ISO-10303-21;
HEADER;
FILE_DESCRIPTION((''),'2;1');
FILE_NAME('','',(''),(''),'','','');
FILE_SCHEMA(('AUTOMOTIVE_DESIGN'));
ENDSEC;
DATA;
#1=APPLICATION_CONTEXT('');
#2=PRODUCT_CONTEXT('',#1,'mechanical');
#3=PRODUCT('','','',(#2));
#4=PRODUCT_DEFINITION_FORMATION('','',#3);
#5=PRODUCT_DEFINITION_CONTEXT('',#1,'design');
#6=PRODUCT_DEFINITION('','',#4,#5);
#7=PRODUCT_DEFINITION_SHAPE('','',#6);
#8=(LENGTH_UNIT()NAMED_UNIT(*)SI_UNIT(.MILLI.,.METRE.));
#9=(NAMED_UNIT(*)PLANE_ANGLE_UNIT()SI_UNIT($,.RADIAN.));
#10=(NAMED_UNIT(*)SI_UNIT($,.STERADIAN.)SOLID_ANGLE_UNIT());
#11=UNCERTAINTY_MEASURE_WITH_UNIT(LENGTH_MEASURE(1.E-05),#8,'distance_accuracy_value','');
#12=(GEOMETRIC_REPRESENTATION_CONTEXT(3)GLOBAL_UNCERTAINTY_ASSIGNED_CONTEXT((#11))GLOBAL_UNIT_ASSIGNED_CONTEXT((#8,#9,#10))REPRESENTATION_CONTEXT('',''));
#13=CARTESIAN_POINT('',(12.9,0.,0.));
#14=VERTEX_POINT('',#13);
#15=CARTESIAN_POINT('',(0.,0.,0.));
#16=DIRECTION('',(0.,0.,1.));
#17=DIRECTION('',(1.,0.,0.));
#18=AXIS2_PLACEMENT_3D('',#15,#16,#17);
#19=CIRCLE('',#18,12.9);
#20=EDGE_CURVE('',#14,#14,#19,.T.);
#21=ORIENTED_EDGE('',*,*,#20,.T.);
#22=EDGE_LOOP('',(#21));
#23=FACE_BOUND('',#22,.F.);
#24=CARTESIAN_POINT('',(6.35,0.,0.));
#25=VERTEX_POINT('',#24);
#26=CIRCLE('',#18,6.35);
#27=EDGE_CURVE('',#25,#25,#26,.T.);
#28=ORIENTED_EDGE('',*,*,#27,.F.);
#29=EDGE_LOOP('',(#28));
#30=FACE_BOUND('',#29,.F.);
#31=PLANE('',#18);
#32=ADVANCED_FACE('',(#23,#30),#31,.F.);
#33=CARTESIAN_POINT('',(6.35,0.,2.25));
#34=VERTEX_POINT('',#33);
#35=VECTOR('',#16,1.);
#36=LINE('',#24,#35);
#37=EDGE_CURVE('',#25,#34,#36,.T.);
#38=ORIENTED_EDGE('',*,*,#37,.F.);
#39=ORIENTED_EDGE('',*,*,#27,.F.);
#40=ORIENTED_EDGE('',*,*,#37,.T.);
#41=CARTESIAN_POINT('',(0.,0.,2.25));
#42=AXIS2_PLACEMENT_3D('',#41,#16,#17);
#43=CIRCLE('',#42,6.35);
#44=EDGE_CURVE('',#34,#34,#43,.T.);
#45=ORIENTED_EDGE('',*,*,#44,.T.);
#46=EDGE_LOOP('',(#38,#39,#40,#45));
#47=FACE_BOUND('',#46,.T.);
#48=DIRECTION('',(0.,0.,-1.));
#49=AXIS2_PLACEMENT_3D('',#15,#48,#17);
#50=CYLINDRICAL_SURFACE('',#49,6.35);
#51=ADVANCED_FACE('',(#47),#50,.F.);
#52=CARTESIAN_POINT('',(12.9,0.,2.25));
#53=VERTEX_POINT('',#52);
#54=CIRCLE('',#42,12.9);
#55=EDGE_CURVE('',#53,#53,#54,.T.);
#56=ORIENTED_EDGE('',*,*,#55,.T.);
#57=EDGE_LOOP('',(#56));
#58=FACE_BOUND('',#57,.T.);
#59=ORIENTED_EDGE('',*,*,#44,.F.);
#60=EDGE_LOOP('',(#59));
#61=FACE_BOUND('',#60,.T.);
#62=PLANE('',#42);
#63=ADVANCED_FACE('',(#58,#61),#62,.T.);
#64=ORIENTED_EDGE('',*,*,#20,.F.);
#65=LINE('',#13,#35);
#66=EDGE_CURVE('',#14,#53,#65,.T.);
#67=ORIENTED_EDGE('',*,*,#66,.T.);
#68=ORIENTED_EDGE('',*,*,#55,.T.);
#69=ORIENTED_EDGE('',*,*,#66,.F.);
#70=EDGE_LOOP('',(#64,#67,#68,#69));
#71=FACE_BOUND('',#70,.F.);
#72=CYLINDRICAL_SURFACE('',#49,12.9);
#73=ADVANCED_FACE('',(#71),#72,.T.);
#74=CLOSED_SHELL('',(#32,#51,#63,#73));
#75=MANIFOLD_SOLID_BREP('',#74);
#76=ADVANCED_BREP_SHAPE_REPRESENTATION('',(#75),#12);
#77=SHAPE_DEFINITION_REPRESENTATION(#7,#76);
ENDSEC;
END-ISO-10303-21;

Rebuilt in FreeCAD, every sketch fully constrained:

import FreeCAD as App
import Part
import Sketcher

V = App.Vector
Q = App.Units.Quantity

doc = App.newDocument("Part")
body = doc.addObject("PartDesign::Body", "Body")

# Sketch on XY plane
sketch1 = body.newObject("Sketcher::SketchObject", "Sketch")
sketch1.AttachmentSupport = (doc.getObject("XY_Plane"), [""])
sketch1.MapMode = "FlatFace"
sketch1.addGeometry([
    Part.Circle(V(0, 0, 0), V(0, 0, 1), 13),
    Part.Circle(V(0, 0, 0), V(0, 0, 1), 6),
], False)
sketch1.addConstraint([
    Sketcher.Constraint("Coincident", 0, 3, -1, 1),
    Sketcher.Constraint("Coincident", 1, 3, -1, 1),
    Sketcher.Constraint("Diameter", 0, Q("25.8 mm")),
    Sketcher.Constraint("Diameter", 1, Q("12.7 mm")),
])
pad1 = body.newObject("PartDesign::Pad", "Pad")
pad1.Profile = sketch1
pad1.Length = 2.25

doc.recompute()
